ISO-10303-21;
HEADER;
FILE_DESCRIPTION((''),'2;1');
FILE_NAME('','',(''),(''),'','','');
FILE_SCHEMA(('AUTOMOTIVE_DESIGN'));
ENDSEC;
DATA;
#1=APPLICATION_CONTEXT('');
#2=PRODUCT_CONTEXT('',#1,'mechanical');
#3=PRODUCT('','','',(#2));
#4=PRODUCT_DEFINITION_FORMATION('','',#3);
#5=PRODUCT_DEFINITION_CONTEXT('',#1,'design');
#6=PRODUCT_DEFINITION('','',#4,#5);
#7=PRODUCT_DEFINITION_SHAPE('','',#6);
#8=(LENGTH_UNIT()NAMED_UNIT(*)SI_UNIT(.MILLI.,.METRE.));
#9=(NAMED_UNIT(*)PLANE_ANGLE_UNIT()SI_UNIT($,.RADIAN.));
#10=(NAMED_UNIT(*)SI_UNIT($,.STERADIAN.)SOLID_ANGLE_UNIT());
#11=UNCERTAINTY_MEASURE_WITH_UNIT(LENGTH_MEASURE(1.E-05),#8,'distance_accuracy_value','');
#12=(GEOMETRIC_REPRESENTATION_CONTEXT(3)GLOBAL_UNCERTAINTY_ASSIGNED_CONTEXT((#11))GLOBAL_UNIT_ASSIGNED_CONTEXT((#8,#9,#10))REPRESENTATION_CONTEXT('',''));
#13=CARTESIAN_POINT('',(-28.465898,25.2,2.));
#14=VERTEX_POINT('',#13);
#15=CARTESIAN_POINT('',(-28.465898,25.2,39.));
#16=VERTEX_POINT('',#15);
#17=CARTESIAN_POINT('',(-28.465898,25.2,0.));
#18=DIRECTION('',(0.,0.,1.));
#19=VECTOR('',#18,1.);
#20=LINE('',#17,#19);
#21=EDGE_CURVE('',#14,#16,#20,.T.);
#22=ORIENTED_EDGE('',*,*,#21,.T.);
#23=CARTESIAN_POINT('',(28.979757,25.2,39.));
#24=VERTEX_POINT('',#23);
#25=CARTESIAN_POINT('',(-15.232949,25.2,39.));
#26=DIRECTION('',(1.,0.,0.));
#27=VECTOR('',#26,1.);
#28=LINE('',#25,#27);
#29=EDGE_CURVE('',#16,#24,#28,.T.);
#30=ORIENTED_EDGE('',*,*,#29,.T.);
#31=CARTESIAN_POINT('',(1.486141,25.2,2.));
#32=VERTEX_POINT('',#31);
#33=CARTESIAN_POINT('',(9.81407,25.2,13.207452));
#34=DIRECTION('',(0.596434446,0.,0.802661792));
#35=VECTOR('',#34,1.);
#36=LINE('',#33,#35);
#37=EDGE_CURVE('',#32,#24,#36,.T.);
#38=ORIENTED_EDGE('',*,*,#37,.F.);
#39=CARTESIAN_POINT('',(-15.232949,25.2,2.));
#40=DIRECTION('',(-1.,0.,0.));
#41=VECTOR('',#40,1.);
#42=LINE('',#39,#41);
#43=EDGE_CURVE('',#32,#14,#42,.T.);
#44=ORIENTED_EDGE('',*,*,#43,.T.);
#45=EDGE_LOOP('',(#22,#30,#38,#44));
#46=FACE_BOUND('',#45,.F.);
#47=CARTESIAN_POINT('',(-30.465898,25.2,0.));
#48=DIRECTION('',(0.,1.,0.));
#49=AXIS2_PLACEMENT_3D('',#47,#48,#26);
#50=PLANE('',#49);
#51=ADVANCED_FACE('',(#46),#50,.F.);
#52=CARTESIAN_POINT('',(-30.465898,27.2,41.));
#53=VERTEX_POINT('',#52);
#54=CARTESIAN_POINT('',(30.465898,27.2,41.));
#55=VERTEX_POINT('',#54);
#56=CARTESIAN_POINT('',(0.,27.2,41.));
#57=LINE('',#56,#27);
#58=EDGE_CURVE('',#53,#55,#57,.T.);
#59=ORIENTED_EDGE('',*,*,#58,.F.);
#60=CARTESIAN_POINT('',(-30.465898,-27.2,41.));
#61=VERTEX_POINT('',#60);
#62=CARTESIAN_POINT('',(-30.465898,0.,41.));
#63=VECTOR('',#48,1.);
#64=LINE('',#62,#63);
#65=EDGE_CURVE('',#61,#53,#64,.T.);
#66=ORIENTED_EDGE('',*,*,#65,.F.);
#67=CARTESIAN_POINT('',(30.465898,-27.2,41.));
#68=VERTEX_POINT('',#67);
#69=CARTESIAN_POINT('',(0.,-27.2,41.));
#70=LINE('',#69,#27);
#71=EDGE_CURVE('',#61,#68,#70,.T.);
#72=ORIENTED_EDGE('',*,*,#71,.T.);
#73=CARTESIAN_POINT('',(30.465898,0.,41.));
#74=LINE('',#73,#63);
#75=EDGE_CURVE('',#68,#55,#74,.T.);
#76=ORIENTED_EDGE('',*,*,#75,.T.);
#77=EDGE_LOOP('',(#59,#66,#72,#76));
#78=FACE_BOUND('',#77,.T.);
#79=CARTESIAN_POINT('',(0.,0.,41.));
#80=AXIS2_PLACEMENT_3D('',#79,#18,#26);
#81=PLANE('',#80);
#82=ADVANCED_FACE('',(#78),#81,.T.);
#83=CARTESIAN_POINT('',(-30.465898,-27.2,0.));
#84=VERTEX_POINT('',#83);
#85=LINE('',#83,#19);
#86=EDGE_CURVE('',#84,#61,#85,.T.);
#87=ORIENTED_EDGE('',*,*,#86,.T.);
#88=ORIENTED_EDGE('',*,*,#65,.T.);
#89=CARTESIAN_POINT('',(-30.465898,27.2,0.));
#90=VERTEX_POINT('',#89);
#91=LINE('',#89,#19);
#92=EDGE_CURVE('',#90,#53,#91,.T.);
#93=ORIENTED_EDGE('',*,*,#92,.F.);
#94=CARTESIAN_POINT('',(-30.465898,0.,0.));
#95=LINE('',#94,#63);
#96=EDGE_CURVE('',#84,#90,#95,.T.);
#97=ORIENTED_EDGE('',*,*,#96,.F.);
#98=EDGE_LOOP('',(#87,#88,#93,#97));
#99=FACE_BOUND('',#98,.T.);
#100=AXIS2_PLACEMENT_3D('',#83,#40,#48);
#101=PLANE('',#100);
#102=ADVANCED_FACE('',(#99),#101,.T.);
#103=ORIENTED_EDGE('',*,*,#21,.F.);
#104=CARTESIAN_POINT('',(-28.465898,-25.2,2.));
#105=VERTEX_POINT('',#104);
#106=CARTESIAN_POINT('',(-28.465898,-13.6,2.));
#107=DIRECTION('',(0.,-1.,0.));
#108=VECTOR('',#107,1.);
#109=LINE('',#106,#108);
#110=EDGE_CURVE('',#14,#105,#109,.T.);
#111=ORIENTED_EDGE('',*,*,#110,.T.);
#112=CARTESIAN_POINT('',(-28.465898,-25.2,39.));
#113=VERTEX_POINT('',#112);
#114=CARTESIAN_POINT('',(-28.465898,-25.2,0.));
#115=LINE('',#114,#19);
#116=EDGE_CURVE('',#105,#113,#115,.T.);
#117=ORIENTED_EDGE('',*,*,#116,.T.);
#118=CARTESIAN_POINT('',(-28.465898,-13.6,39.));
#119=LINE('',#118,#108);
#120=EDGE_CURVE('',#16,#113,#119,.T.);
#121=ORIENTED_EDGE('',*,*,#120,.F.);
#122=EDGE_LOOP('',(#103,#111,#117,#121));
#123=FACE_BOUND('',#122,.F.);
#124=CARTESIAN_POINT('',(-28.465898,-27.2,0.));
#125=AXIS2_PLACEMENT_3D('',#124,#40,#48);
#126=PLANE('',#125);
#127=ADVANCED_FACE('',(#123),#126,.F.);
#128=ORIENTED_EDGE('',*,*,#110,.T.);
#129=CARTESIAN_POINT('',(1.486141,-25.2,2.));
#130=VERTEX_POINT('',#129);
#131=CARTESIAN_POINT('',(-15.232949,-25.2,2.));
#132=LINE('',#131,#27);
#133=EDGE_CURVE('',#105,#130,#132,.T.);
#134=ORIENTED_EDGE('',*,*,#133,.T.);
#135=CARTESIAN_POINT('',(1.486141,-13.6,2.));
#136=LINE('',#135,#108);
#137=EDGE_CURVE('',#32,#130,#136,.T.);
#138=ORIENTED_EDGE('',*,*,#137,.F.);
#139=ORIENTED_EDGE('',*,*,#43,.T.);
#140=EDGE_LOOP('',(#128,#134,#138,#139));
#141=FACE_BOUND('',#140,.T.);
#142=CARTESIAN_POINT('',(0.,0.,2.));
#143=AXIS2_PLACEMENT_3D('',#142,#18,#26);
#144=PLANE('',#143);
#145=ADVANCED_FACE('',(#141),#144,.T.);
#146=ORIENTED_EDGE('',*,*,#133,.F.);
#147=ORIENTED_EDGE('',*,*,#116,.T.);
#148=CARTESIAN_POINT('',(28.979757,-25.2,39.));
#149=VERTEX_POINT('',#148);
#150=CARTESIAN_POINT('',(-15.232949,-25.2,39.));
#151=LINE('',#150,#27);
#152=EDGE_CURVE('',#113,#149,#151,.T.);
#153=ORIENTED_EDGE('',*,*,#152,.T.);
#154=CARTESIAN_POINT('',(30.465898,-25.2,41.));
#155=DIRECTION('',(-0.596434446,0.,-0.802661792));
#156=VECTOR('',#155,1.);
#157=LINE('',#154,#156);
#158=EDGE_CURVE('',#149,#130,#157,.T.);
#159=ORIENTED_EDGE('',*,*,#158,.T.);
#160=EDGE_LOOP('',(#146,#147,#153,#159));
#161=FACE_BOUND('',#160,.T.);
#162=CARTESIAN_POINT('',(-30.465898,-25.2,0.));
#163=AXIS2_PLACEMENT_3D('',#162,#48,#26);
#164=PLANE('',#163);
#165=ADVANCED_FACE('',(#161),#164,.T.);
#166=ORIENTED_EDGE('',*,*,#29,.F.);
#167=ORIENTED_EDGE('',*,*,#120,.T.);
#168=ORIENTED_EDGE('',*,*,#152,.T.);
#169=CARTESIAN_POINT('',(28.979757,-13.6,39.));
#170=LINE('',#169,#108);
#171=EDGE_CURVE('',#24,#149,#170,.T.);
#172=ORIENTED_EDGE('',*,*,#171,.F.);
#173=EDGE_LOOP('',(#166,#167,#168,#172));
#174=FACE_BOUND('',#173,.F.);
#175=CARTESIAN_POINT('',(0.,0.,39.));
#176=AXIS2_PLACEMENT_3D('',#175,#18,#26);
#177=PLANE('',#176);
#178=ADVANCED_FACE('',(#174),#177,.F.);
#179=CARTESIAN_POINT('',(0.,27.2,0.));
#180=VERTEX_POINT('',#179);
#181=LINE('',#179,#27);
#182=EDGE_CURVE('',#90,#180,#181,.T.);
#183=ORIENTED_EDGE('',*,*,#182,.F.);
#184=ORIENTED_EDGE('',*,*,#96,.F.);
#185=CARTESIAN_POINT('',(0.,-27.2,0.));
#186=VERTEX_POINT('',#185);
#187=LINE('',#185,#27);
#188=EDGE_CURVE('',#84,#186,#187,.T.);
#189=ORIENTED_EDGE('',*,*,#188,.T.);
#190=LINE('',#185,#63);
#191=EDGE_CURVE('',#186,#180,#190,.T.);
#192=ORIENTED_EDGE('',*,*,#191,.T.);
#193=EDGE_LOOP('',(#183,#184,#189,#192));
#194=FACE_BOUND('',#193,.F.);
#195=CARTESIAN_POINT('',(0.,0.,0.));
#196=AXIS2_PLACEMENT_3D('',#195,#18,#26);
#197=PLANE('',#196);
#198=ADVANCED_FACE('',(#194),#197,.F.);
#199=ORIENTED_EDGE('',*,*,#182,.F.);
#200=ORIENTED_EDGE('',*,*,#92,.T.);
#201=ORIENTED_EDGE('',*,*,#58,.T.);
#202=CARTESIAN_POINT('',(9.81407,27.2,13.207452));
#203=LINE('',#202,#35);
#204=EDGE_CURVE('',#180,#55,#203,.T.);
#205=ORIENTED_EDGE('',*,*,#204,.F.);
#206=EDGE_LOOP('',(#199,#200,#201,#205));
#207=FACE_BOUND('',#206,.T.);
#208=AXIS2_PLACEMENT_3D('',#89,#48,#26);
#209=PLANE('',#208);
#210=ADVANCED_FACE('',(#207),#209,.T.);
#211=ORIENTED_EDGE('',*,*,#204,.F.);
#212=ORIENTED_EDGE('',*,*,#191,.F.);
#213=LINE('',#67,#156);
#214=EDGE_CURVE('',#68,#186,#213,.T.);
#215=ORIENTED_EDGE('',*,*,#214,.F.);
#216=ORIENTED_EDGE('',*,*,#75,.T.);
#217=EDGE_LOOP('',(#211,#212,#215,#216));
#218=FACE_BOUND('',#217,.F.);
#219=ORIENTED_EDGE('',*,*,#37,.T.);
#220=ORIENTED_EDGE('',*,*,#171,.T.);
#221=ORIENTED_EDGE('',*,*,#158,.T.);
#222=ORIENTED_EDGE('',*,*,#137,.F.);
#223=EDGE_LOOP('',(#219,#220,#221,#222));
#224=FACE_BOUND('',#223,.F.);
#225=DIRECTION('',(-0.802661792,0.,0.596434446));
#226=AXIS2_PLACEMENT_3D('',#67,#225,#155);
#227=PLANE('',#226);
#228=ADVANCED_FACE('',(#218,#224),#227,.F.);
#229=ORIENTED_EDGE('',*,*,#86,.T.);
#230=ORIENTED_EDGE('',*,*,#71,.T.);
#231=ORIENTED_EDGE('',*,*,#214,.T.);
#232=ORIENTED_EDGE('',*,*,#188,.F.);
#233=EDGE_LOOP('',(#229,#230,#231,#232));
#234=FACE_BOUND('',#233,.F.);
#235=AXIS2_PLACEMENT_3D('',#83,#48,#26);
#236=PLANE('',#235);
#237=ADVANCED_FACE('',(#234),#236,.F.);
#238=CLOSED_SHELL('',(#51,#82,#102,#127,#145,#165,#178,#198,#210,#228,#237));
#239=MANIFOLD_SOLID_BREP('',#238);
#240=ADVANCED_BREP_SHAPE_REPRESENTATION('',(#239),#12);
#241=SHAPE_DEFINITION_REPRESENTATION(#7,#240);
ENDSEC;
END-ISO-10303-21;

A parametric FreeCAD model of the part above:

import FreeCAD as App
import Part
import Sketcher

V = App.Vector


def faces_at(feature, points):
    """Names of the faces that lie closest to the given points."""
    faces = feature.Shape.Faces
    near = lambda p: min(range(len(faces)), key=lambda i: faces[i].distToShape(Part.Vertex(*p))[0])
    return sorted({f"Face{near(p) + 1}" for p in points})


def add_polygon(sketch, points):
    """Adds a closed chain of lines whose ends are joined by coincident constraints."""
    first, n = sketch.GeometryCount, len(points)
    for a, b in zip(points, points[1:] + points[:1]):
        sketch.addGeometry(Part.LineSegment(App.Vector(*a, 0), App.Vector(*b, 0)), False)
    for i in range(n):
        sketch.addConstraint(Sketcher.Constraint("Coincident", first + i, 2, first + (i + 1) % n, 1))

doc = App.newDocument("Part")
body = doc.addObject("PartDesign::Body", "Body")

# Sketch on XY plane
sketch1 = body.newObject("Sketcher::SketchObject", "Sketch")
sketch1.AttachmentSupport = (doc.getObject("XY_Plane"), [""])
sketch1.MapMode = "FlatFace"
add_polygon(sketch1, [(-30, 27), (-30, -27), (30, -27), (30, 27)])  # lines 0-3
sketch1.addConstraint([
    Sketcher.Constraint("Vertical", 0),
    Sketcher.Constraint("Horizontal", 1),
    Sketcher.Constraint("Vertical", 2),
    Sketcher.Constraint("Horizontal", 3),
    Sketcher.Constraint("Symmetric", 0, 2, 2, 2, -1, 1),
    Sketcher.Constraint("DistanceY", 0, 2, 0, 1, 54.4),
    Sketcher.Constraint("DistanceX", 1, 1, 1, 2, 60.931796),
])
pad1 = body.newObject("PartDesign::Pad", "Pad")
pad1.Profile = sketch1
pad1.Length = 41

# Sketch on XZ plane
sketch2 = body.newObject("Sketcher::SketchObject", "Sketch001")
sketch2.AttachmentSupport = (doc.getObject("XZ_Plane"), [""])
sketch2.MapMode = "FlatFace"
sketch2.AttachmentOffset = App.Placement(V(0, 0, 27.2), App.Rotation())
add_polygon(sketch2, [(30, 0), (30, 41), (0, 0)])  # lines 0-2
sketch2.addConstraint([
    Sketcher.Constraint("Vertical", 0),
    Sketcher.Constraint("Horizontal", 2),
    Sketcher.Constraint("Coincident", 1, 2, -1, 1),
    Sketcher.Constraint("DistanceY", 0, 1, 0, 2, 41.0),
    Sketcher.Constraint("DistanceX", 2, 1, 2, 2, 30.465898),
])
pocket1 = body.newObject("PartDesign::Pocket", "Pocket")
pocket1.Profile = sketch2
pocket1.Type = "ThroughAll"
doc.recompute()

thickness = body.newObject("PartDesign::Thickness", "Thickness")
thickness.Base = (pocket1, faces_at(pocket1, [(15.233, 0, 20.5)]))
thickness.Value = 2
thickness.Reversed = True
thickness.Join = "Arc"

doc.recompute()
